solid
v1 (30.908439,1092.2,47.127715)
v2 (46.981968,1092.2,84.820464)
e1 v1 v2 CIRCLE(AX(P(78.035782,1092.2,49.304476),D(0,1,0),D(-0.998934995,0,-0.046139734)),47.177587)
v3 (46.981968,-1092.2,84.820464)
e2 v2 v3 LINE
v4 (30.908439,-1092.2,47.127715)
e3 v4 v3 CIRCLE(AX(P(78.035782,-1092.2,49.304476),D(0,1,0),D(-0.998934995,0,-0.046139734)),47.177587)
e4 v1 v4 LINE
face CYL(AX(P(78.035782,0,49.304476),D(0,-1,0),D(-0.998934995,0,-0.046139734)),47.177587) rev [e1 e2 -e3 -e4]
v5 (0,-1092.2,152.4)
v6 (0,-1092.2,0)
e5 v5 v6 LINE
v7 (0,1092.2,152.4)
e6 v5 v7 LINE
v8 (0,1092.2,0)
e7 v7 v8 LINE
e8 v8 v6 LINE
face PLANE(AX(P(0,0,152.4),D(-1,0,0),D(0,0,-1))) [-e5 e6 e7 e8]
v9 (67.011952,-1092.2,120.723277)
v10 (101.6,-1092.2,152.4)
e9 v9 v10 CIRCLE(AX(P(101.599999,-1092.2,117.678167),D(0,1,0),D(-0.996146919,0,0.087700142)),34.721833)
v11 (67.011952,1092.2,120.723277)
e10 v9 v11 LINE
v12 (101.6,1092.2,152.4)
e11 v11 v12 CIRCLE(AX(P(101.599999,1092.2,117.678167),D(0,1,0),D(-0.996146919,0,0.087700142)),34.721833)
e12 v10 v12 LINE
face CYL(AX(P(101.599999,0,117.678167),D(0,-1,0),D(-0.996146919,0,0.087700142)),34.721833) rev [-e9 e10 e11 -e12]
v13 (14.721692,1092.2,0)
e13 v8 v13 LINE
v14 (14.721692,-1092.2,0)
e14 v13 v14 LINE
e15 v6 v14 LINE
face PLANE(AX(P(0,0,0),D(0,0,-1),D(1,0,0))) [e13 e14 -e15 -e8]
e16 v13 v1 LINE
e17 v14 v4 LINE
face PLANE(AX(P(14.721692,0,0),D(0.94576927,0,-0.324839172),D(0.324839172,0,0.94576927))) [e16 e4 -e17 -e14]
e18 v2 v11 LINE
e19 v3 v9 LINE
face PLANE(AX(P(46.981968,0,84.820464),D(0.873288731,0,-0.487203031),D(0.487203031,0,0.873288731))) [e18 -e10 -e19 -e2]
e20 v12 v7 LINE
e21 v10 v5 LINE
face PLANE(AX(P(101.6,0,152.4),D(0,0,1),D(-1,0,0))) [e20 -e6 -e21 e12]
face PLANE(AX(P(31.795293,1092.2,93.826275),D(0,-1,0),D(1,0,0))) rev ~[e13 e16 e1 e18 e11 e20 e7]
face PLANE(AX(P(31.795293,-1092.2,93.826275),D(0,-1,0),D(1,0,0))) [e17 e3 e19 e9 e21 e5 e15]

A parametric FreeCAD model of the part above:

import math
import FreeCAD as App
import Part
import Sketcher
Q = App.Units.Quantity

doc = App.newDocument("Part")
body = doc.addObject("PartDesign::Body", "Body")

# Sketch on XZ plane
sketch1 = doc.addObject("Sketcher::SketchObject", "Sketch")
body.addObject(sketch1)
sketch1.AttachmentSupport = (doc.XZ_Plane, [""])
sketch1.MapMode = "FlatFace"
sketch1.addGeometry(Part.LineSegment(App.Vector(0, 152.4, 0), App.Vector(0, 0, 0)), False)
sketch1.addGeometry(Part.LineSegment(App.Vector(0, 0, 0), App.Vector(14.721692, 0, 0)), False)
sketch1.addGeometry(Part.LineSegment(App.Vector(14.721692, 0, 0), App.Vector(30.908439, 47.127715, 0)), False)
sketch1.addGeometry(Part.ArcOfCircle(Part.Circle(App.Vector(78.035782, 49.304476, 0), App.Vector(0, 0, 1), 47.177587), math.radians(131.1652), math.radians(182.644551)), False)
sketch1.addGeometry(Part.LineSegment(App.Vector(46.981968, 84.820464, 0), App.Vector(67.011952, 120.723277, 0)), False)
sketch1.addGeometry(Part.ArcOfCircle(Part.Circle(App.Vector(101.599999, 117.678167, 0), App.Vector(0, 0, 1), 34.721833), math.radians(89.999998), math.radians(174.968688)), False)
sketch1.addGeometry(Part.LineSegment(App.Vector(101.6, 152.4, 0), App.Vector(0, 152.4, 0)), False)
sketch1.addConstraint(Sketcher.Constraint("Coincident", 0, 2, 1, 1))
sketch1.addConstraint(Sketcher.Constraint("Coincident", 1, 2, 2, 1))
sketch1.addConstraint(Sketcher.Constraint("Coincident", 2, 2, 3, 2))
sketch1.addConstraint(Sketcher.Constraint("Coincident", 3, 1, 4, 1))
sketch1.addConstraint(Sketcher.Constraint("Coincident", 4, 2, 5, 2))
sketch1.addConstraint(Sketcher.Constraint("Tangent", 5, 1, 6, 1))
sketch1.addConstraint(Sketcher.Constraint("Coincident", 6, 2, 0, 1))
sketch1.addConstraint(Sketcher.Constraint("Vertical", 0))
sketch1.addConstraint(Sketcher.Constraint("Horizontal", 1))
sketch1.addConstraint(Sketcher.Constraint("Horizontal", 6))
sketch1.addConstraint(Sketcher.Constraint("Coincident", 0, 2, -1, 1))
sketch1.addConstraint(Sketcher.Constraint("DistanceX", 6, 2, 6, 1, Q("4 in")))
sketch1.addConstraint(Sketcher.Constraint("DistanceY", 0, 2, 0, 1, Q("6 in")))
sketch1.addConstraint(Sketcher.Constraint("Radius", 3, 47.177587))
sketch1.addConstraint(Sketcher.Constraint("Radius", 5, 34.721833))
sketch1.addConstraint(Sketcher.Constraint("DistanceX", 1, 1, 1, 2, 14.721692))
sketch1.addConstraint(Sketcher.Constraint("DistanceY", 3, 3, 4, 2, 71.418801))
sketch1.addConstraint(Sketcher.Constraint("Distance", 4, 41.112191))
sketch1.addConstraint(Sketcher.Constraint("DistanceX", -1, 1, 3, 3, 78.035782))
sketch1.addConstraint(Sketcher.Constraint("DistanceX", -1, 1, 2, 2, 30.908439))
sketch1.addConstraint(Sketcher.Constraint("DistanceX", -1, 1, 4, 2, 67.011952))
pad1 = doc.addObject("PartDesign::Pad", "Pad")
body.addObject(pad1)
pad1.Profile = sketch1
pad1.Length = Q("86 in")
pad1.Midplane = True

doc.recompute()
